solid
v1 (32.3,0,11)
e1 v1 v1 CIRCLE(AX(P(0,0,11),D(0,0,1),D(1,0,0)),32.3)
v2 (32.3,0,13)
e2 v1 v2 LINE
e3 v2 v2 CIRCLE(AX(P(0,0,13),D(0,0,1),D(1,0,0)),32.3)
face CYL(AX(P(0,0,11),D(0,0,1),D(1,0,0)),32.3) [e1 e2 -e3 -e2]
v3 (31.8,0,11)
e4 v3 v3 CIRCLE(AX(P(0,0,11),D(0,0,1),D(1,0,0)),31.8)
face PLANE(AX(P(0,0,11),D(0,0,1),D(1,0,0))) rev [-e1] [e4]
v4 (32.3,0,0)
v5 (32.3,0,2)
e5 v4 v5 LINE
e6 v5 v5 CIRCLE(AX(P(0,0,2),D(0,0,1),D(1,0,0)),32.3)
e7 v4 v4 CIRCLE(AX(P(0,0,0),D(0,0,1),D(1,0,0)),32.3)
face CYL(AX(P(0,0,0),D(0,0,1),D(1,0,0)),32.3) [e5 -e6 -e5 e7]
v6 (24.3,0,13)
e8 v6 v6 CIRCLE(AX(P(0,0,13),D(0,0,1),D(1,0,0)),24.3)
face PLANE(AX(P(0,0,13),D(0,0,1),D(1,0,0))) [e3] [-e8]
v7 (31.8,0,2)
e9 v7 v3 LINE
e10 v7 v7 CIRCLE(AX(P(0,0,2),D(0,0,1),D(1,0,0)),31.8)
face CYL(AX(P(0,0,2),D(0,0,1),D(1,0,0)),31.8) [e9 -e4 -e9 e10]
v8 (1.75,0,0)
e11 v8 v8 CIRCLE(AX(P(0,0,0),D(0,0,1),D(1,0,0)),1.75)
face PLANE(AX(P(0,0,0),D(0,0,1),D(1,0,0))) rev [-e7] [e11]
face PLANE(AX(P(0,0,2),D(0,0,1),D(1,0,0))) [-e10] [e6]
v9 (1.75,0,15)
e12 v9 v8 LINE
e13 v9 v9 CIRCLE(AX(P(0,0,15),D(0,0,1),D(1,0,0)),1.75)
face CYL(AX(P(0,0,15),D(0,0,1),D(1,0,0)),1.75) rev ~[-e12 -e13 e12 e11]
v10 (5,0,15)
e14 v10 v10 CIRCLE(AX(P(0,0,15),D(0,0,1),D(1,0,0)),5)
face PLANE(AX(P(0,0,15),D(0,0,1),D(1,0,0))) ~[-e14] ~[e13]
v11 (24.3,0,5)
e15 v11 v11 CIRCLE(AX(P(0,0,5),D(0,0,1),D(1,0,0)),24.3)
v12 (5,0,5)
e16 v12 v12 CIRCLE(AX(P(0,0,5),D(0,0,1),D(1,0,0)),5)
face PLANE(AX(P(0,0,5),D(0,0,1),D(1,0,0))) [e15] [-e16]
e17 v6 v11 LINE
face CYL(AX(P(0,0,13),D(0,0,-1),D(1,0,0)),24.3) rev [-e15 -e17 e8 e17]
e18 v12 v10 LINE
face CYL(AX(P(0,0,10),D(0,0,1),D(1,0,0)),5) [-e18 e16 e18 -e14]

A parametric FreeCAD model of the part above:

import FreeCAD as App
import Part
import Sketcher
Q = App.Units.Quantity

doc = App.newDocument("Part")
body = doc.addObject("PartDesign::Body", "Body")

sketch1 = body.newObject("Sketcher::SketchObject", "Sketch")
sketch1.AttachmentSupport = (doc.getObject("XZ_Plane"), [""])
sketch1.MapMode = "FlatFace"
sketch1.addGeometry(Part.LineSegment(App.Vector(0, 15, 0), App.Vector(0, 0, 0)), False)
sketch1.addGeometry(Part.LineSegment(App.Vector(0, 0, 0), App.Vector(32.3, 0, 0)), False)
sketch1.addGeometry(Part.LineSegment(App.Vector(32.3, 0, 0), App.Vector(32.3, 2, 0)), False)
sketch1.addGeometry(Part.LineSegment(App.Vector(32.3, 2, 0), App.Vector(31.8, 2, 0)), False)
sketch1.addGeometry(Part.LineSegment(App.Vector(31.8, 2, 0), App.Vector(31.8, 11, 0)), False)
sketch1.addGeometry(Part.LineSegment(App.Vector(31.8, 11, 0), App.Vector(32.3, 11, 0)), False)
sketch1.addGeometry(Part.LineSegment(App.Vector(32.3, 11, 0), App.Vector(32.3, 13, 0)), False)
sketch1.addGeometry(Part.LineSegment(App.Vector(32.3, 13, 0), App.Vector(24.3, 13, 0)), False)
sketch1.addGeometry(Part.LineSegment(App.Vector(24.3, 13, 0), App.Vector(24.3, 5, 0)), False)
sketch1.addGeometry(Part.LineSegment(App.Vector(24.3, 5, 0), App.Vector(5, 5, 0)), False)
sketch1.addGeometry(Part.LineSegment(App.Vector(5, 5, 0), App.Vector(5, 15, 0)), False)
sketch1.addGeometry(Part.LineSegment(App.Vector(5, 15, 0), App.Vector(0, 15, 0)), False)
sketch1.addConstraint(Sketcher.Constraint("Coincident", 0, 2, 1, 1))
sketch1.addConstraint(Sketcher.Constraint("Coincident", 1, 2, 2, 1))
sketch1.addConstraint(Sketcher.Constraint("Coincident", 2, 2, 3, 1))
sketch1.addConstraint(Sketcher.Constraint("Coincident", 3, 2, 4, 1))
sketch1.addConstraint(Sketcher.Constraint("Coincident", 4, 2, 5, 1))
sketch1.addConstraint(Sketcher.Constraint("Coincident", 5, 2, 6, 1))
sketch1.addConstraint(Sketcher.Constraint("Coincident", 6, 2, 7, 1))
sketch1.addConstraint(Sketcher.Constraint("Coincident", 7, 2, 8, 1))
sketch1.addConstraint(Sketcher.Constraint("Coincident", 8, 2, 9, 1))
sketch1.addConstraint(Sketcher.Constraint("Coincident", 9, 2, 10, 1))
sketch1.addConstraint(Sketcher.Constraint("Coincident", 10, 2, 11, 1))
sketch1.addConstraint(Sketcher.Constraint("Coincident", 11, 2, 0, 1))
sketch1.addConstraint(Sketcher.Constraint("Vertical", 0))
sketch1.addConstraint(Sketcher.Constraint("Horizontal", 1))
sketch1.addConstraint(Sketcher.Constraint("Vertical", 2))
sketch1.addConstraint(Sketcher.Constraint("Horizontal", 3))
sketch1.addConstraint(Sketcher.Constraint("Vertical", 4))
sketch1.addConstraint(Sketcher.Constraint("Horizontal", 5))
sketch1.addConstraint(Sketcher.Constraint("Vertical", 6))
sketch1.addConstraint(Sketcher.Constraint("Horizontal", 7))
sketch1.addConstraint(Sketcher.Constraint("Vertical", 8))
sketch1.addConstraint(Sketcher.Constraint("Horizontal", 9))
sketch1.addConstraint(Sketcher.Constraint("Vertical", 10))
sketch1.addConstraint(Sketcher.Constraint("Horizontal", 11))
sketch1.addConstraint(Sketcher.Constraint("Coincident", 0, 2, -1, 1))
sketch1.addConstraint(Sketcher.Constraint("Vertical", 2, 2, 5, 2))
sketch1.addConstraint(Sketcher.Constraint("Equal", 2, 6))
sketch1.addConstraint(Sketcher.Constraint("Equal", 7, 8))
sketch1.addConstraint(Sketcher.Constraint("DistanceX", 7, 2, 7, 1, Q("8 mm")))
sketch1.addConstraint(Sketcher.Constraint("DistanceX", 11, 2, 11, 1, Q("5 mm")))
sketch1.addConstraint(Sketcher.Constraint("DistanceY", 0, 2, 0, 1, Q("15 mm")))
sketch1.addConstraint(Sketcher.Constraint("DistanceY", 2, 1, 2, 2, Q("2 mm")))
sketch1.addConstraint(Sketcher.Constraint("DistanceY", 4, 1, 4, 2, Q("9 mm")))
sketch1.addConstraint(Sketcher.Constraint("DistanceX", 1, 1, 1, 2, Q("32.3 mm")))
sketch1.addConstraint(Sketcher.Constraint("DistanceX", 3, 2, 3, 1, Q("0.5 mm")))
revolution = body.newObject("PartDesign::Revolution", "Revolution")
revolution.Profile = sketch1
revolution.ReferenceAxis = (sketch1, ["V_Axis"])
revolution.Angle = 360

sketch2 = body.newObject("Sketcher::SketchObject", "Sketch001")
sketch2.AttachmentSupport = (doc.getObject("XY_Plane"), [""])
sketch2.MapMode = "FlatFace"
sketch2.AttachmentOffset = App.Placement(App.Vector(0, 0, 15), App.Rotation())
sketch2.addGeometry(Part.Circle(App.Vector(0, 0, 0), App.Vector(0, 0, 1), 1.8), False)
sketch2.addConstraint(Sketcher.Constraint("Coincident", 0, 3, -1, 1))
sketch2.addConstraint(Sketcher.Constraint("Diameter", 0, Q("3.5 mm")))
pocket1 = body.newObject("PartDesign::Pocket", "Pocket")
pocket1.Profile = sketch2
pocket1.Length = 80

doc.recompute()
